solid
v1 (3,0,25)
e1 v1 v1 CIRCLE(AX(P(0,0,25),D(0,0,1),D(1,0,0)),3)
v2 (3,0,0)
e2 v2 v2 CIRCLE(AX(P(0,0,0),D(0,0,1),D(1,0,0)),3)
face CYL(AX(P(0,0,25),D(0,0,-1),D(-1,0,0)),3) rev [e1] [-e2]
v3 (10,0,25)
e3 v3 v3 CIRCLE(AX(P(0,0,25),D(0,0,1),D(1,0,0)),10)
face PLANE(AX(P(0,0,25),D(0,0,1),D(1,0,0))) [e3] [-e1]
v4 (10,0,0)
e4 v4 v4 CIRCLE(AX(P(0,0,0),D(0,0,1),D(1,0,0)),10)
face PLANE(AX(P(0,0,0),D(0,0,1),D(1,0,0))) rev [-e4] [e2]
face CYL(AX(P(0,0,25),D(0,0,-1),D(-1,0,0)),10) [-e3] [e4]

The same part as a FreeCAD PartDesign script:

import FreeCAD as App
import Part
import Sketcher
Q = App.Units.Quantity

doc = App.newDocument("Part")
params = doc.addObject("Spreadsheet::Sheet", "Params")
for row, (alias, value) in enumerate([
    ("sketch1_diameter", "20 mm"),
    ("sketch1_diameter2", "6 mm"),
    ("pad1_length", "25 mm"),
], start=1):
    params.set(f"A{row}", alias)
    params.set(f"B{row}", "=" + value)
    params.setAlias(f"B{row}", alias)

body = doc.addObject("PartDesign::Body", "Body")

sketch1 = doc.addObject("Sketcher::SketchObject", "Sketch")
body.addObject(sketch1)
sketch1.AttachmentSupport = (doc.XY_Plane, [""])
sketch1.MapMode = "FlatFace"
sketch1.addGeometry([
    Part.Circle(App.Vector(0, 0, 0), App.Vector(0, 0, 1), 10),
    Part.Circle(App.Vector(0, 0, 0), App.Vector(0, 0, 1), 3),
], False)
sketch1.addConstraint([
    Sketcher.Constraint("Coincident", 0, 3, -1, 1),
    Sketcher.Constraint("Coincident", 1, 3, -1, 1),
    Sketcher.Constraint("Diameter", 0, Q("20 mm")),
    Sketcher.Constraint("Diameter", 1, Q("6 mm")),
])
sketch1.setExpression("Constraints[2]", "Params.sketch1_diameter")
sketch1.setExpression("Constraints[3]", "Params.sketch1_diameter2")
pad1 = doc.addObject("PartDesign::Pad", "Pad")
body.addObject(pad1)
pad1.Profile = sketch1
pad1.setExpression("Length", "Params.pad1_length")

doc.recompute()
